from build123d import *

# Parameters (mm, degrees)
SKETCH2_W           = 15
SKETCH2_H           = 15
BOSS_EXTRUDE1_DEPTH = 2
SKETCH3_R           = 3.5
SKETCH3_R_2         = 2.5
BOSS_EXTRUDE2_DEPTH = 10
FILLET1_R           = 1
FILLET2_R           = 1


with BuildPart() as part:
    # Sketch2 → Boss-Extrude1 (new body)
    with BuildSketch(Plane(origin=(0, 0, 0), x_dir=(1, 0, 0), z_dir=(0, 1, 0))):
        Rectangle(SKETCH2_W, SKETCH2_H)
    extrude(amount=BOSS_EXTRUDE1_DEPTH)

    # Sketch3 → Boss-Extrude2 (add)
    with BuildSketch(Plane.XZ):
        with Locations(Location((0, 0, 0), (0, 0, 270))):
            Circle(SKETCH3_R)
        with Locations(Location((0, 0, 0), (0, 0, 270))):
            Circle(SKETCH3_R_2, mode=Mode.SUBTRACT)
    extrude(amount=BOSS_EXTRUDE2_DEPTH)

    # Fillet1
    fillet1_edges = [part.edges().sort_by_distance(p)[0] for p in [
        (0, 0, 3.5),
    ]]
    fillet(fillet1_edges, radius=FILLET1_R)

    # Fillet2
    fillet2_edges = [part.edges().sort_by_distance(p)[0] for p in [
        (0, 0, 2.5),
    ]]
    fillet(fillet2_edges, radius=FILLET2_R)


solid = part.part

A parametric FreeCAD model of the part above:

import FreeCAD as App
import Part
import Sketcher


def edges_at(feature, points):
    """Names of the edges that pass closest to the given points."""
    edges = feature.Shape.Edges
    near = lambda p: min(range(len(edges)), key=lambda i: edges[i].distToShape(Part.Vertex(*p))[0])
    return sorted({f"Edge{near(p) + 1}" for p in points})


def add_polygon(sketch, points):
    """Adds a closed chain of lines whose ends are joined by coincident constraints."""
    first, n = sketch.GeometryCount, len(points)
    for a, b in zip(points, points[1:] + points[:1]):
        sketch.addGeometry(Part.LineSegment(App.Vector(*a, 0), App.Vector(*b, 0)), False)
    for i in range(n):
        sketch.addConstraint(Sketcher.Constraint("Coincident", first + i, 2, first + (i + 1) % n, 1))

doc = App.newDocument("Part")
body = doc.addObject("PartDesign::Body", "Body")

sketch1 = body.newObject("Sketcher::SketchObject", "Sketch")
sketch1.AttachmentSupport = (doc.getObject("XZ_Plane"), [""])
sketch1.MapMode = "FlatFace"
add_polygon(sketch1, [(-8, -8), (-8, 8), (8, 8), (8, -8)])
sketch1.addConstraint([
    Sketcher.Constraint("Vertical", 0),
    Sketcher.Constraint("Horizontal", 1),
    Sketcher.Constraint("Vertical", 2),
    Sketcher.Constraint("Horizontal", 3),
    Sketcher.Constraint("Symmetric", 0, 2, 2, 2, -1, 1),
    Sketcher.Constraint("Equal", 3, 0),
    Sketcher.Constraint("DistanceX", 1, 1, 1, 2, 15.0),
])
pad1 = body.newObject("PartDesign::Pad", "Pad")
pad1.Profile = sketch1
pad1.Length = 2
pad1.Reversed = True

sketch2 = body.newObject("Sketcher::SketchObject", "Sketch001")
sketch2.AttachmentSupport = (doc.getObject("XZ_Plane"), [""])
sketch2.MapMode = "FlatFace"
sketch2.addGeometry([
    Part.Circle(App.Vector(0, 0, 0), App.Vector(0, 0, 1), 3.5),
    Part.Circle(App.Vector(0, 0, 0), App.Vector(0, 0, 1), 2.5),
], False)
sketch2.addConstraint([
    Sketcher.Constraint("Coincident", 0, 3, -1, 1),
    Sketcher.Constraint("Coincident", 1, 3, -1, 1),
    Sketcher.Constraint("Diameter", 0, 7.0),
    Sketcher.Constraint("Diameter", 1, 5.0),
])
pad2 = body.newObject("PartDesign::Pad", "Pad001")
pad2.Profile = sketch2
pad2.Length = 10
doc.recompute()

fillet = body.newObject("PartDesign::Fillet", "Fillet")
fillet.Base = (pad2, edges_at(pad2, [(0, 0, 3.5)]))
fillet.Radius = 1
doc.recompute()

fillet2 = body.newObject("PartDesign::Fillet", "Fillet001")
fillet2.Base = (fillet, edges_at(fillet, [(0, 0, 2.5)]))
fillet2.Radius = 1

doc.recompute()
